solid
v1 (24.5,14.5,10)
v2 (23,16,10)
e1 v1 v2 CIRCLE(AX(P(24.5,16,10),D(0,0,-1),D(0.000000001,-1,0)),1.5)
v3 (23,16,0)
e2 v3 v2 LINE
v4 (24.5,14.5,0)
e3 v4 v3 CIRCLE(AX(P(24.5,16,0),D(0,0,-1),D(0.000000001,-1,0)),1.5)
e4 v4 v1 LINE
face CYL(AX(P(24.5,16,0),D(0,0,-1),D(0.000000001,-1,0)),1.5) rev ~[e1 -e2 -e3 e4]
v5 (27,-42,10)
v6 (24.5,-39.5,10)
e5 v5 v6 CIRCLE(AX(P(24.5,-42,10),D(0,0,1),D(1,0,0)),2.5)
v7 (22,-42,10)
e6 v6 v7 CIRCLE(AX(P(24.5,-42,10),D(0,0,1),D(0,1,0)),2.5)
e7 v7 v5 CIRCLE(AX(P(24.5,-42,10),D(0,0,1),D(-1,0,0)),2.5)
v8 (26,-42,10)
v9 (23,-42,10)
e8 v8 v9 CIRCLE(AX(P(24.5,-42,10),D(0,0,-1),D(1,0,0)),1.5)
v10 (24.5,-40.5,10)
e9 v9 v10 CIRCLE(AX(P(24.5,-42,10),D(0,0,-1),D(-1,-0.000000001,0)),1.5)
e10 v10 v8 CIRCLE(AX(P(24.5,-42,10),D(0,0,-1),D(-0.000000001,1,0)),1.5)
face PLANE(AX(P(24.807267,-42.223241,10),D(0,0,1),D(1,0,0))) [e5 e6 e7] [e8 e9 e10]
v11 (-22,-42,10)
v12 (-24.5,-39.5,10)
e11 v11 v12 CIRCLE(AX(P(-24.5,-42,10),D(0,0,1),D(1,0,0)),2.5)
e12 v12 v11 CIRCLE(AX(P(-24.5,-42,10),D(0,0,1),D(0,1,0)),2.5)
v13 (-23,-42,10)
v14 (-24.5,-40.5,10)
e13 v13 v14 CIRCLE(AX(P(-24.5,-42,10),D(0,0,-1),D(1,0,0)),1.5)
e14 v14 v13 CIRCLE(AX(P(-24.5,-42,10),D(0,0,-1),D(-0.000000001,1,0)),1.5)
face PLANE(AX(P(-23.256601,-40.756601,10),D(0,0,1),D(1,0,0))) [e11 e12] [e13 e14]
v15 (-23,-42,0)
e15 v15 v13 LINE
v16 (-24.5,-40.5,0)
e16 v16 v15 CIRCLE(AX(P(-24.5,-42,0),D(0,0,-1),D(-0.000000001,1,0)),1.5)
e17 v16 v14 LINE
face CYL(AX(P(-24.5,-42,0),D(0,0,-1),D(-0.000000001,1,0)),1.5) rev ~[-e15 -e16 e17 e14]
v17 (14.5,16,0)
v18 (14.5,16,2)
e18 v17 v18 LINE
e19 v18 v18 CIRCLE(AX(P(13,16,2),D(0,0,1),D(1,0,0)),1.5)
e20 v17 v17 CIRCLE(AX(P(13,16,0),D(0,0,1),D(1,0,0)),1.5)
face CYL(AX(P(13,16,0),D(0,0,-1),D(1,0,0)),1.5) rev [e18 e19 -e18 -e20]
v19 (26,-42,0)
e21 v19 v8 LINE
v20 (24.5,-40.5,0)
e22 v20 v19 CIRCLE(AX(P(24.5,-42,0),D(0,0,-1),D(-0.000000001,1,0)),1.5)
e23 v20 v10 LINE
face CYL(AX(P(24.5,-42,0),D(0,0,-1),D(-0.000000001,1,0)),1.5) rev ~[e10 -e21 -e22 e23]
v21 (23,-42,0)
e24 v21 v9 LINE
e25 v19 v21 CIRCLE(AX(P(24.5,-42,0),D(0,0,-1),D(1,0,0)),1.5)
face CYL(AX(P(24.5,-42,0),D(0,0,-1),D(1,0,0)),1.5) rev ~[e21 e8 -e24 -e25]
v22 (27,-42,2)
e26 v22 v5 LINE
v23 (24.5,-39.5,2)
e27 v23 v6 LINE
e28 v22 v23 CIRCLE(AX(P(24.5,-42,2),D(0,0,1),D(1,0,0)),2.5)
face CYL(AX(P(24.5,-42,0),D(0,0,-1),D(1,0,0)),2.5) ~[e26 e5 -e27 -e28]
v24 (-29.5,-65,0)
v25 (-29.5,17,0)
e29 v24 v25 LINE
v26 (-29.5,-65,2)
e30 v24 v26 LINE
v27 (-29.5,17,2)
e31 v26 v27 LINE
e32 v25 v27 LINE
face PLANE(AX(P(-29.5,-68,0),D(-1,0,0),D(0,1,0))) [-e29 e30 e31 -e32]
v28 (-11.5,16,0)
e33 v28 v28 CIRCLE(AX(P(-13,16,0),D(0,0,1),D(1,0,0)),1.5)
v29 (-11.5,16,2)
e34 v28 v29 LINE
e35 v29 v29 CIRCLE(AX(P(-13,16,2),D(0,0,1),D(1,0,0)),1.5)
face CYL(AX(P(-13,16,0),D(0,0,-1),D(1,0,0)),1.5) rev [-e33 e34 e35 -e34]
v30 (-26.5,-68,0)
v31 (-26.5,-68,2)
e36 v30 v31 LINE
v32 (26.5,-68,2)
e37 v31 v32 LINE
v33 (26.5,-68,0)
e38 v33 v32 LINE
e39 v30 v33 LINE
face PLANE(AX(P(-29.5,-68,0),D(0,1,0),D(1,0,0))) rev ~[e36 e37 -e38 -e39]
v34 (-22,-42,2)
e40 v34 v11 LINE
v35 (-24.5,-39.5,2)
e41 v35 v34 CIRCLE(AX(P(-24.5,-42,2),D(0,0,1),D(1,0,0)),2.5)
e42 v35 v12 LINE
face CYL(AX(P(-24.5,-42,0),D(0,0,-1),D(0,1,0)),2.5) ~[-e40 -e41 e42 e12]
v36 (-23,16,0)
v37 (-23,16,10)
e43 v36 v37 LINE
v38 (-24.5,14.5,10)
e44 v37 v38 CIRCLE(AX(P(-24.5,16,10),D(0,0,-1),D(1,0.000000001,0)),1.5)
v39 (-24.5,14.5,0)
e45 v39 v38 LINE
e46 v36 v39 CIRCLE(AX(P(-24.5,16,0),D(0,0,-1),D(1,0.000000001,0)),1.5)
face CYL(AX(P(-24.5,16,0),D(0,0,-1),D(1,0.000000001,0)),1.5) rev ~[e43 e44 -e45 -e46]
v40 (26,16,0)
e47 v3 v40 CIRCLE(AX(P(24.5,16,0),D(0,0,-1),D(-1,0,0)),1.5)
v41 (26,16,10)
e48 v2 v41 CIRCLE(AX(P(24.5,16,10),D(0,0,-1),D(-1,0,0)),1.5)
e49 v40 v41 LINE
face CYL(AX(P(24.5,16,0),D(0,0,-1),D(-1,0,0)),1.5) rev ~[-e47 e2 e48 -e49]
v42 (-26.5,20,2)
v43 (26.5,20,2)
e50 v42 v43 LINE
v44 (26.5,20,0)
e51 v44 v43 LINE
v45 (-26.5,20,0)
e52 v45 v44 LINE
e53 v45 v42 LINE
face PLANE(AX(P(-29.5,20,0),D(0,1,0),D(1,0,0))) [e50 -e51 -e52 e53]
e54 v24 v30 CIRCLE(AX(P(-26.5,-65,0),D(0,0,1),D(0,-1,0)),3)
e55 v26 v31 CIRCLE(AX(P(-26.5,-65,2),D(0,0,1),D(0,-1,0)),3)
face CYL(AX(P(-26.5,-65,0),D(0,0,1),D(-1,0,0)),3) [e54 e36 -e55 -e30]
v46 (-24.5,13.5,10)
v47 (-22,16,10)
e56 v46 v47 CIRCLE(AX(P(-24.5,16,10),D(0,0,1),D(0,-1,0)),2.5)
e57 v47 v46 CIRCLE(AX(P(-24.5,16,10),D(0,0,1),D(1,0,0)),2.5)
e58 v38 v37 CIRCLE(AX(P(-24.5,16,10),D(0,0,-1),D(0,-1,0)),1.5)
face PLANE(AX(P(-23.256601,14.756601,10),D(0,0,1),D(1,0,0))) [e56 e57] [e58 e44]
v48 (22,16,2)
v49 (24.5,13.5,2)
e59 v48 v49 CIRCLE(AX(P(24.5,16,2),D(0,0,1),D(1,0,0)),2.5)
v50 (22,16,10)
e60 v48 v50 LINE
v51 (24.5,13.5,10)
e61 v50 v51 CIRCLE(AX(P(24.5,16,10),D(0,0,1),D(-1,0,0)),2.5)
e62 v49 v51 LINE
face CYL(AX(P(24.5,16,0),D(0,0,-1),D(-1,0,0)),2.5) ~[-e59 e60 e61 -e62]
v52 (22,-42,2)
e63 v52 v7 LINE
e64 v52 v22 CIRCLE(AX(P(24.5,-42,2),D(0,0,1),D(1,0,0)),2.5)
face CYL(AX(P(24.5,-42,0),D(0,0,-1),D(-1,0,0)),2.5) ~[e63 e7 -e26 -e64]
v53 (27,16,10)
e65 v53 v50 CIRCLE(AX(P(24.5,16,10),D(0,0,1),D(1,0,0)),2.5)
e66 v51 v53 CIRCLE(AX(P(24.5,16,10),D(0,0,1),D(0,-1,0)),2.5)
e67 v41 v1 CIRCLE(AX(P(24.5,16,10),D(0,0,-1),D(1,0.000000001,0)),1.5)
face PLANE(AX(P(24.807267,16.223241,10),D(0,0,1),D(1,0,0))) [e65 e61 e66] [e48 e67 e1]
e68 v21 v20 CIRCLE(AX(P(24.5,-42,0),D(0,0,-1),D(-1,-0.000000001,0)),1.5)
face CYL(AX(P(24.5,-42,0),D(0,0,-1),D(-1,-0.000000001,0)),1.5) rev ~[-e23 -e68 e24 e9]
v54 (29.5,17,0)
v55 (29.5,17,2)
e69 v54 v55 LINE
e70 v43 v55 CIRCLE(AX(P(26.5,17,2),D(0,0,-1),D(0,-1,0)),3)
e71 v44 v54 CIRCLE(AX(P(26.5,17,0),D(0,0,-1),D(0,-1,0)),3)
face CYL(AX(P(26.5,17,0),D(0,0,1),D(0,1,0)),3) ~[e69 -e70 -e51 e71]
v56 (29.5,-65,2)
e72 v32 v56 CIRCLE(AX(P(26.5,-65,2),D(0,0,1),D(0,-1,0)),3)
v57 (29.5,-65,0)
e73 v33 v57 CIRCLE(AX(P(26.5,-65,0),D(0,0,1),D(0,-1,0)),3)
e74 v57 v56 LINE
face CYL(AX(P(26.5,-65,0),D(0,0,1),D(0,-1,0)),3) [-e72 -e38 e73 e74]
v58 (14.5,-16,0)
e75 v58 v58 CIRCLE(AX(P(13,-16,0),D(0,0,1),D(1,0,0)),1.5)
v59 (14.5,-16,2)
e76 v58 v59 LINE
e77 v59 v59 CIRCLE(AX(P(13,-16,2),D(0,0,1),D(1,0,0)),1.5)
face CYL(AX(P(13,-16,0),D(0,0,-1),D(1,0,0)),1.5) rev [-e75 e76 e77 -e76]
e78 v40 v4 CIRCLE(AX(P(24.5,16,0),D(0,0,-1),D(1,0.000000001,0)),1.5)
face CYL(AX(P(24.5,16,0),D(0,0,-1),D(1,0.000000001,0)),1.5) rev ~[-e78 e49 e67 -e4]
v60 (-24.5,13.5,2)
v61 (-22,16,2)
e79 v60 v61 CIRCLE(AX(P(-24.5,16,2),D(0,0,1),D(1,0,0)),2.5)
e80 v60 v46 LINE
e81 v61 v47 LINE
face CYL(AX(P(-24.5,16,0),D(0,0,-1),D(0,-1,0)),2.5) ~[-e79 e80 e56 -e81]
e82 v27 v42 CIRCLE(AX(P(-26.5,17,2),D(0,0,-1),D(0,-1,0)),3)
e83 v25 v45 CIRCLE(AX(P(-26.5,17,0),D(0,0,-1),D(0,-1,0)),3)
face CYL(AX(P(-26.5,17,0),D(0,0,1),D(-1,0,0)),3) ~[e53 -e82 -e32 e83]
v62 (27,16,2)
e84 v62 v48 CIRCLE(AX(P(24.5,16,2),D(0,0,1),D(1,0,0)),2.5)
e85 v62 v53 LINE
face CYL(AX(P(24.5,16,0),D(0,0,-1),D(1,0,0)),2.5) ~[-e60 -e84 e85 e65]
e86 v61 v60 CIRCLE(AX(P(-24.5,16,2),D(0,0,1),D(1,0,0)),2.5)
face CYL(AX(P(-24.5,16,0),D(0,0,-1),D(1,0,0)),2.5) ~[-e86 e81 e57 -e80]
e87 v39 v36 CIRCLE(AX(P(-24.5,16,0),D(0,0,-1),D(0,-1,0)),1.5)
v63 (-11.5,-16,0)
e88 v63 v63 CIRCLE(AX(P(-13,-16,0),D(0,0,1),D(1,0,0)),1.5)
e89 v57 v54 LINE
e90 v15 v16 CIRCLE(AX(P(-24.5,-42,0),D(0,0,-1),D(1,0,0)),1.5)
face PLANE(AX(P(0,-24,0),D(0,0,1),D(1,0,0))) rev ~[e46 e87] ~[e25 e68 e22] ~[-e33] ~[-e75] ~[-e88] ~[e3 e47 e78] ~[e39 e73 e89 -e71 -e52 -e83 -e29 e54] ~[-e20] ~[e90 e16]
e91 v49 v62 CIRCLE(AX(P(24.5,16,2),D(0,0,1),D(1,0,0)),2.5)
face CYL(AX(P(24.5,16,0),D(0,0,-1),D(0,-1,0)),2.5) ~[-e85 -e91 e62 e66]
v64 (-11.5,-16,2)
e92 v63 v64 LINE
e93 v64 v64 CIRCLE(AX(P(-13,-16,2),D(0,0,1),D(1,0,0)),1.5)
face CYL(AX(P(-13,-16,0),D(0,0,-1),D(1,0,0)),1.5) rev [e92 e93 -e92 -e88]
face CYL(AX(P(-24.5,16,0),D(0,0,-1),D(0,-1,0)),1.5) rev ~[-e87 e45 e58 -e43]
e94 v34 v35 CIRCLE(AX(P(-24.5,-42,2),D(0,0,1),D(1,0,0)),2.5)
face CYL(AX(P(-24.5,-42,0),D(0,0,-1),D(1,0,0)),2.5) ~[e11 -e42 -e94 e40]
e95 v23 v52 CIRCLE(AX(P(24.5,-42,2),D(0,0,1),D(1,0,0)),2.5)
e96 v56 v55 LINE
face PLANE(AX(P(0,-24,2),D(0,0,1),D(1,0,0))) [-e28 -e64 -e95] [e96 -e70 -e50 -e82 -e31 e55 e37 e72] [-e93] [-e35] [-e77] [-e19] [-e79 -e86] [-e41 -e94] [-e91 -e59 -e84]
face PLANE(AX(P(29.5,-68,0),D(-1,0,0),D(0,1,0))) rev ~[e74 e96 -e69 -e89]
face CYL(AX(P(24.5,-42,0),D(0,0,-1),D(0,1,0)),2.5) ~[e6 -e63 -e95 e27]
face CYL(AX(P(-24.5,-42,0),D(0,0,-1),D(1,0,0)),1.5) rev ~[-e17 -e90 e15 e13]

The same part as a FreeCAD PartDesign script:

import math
import FreeCAD as App
import Part
import Sketcher

V = App.Vector


def edges_at(feature, points):
    """Names of the edges that pass closest to the given points."""
    edges = feature.Shape.Edges
    near = lambda p: min(range(len(edges)), key=lambda i: edges[i].distToShape(Part.Vertex(*p))[0])
    return sorted({f"Edge{near(p) + 1}" for p in points})


def add_polygon(sketch, points):
    """Adds a closed chain of lines whose ends are joined by coincident constraints."""
    first, n = sketch.GeometryCount, len(points)
    for a, b in zip(points, points[1:] + points[:1]):
        sketch.addGeometry(Part.LineSegment(App.Vector(*a, 0), App.Vector(*b, 0)), False)
    for i in range(n):
        sketch.addConstraint(Sketcher.Constraint("Coincident", first + i, 2, first + (i + 1) % n, 1))

doc = App.newDocument("Part")
params = doc.addObject("Spreadsheet::Sheet", "Params")
for row, (alias, value) in enumerate([
    ("sketch1_diameter", "5 mm"),
    ("sketch1_diameter2", "3 mm"),
    ("sketch1_width", "59 mm"),
    ("sketch1_height", "88 mm"),
    ("pad1_length", "2 mm"),
    ("sketch2_radius", "2.5 mm"),
    ("sketch2_radius2", "1.5 mm"),
    ("pad2_length", "10 mm"),
    ("fillet_radius", "3 mm"),
], start=1):
    params.set(f"A{row}", alias)
    params.set(f"B{row}", "=" + value)
    params.setAlias(f"B{row}", alias)

body = doc.addObject("PartDesign::Body", "Body")

sketch1 = body.newObject("Sketcher::SketchObject", "Sketch")
sketch1.AttachmentSupport = (doc.getObject("XY_Plane"), [""])
sketch1.MapMode = "FlatFace"
add_polygon(sketch1, [(-29.5, 20), (-29.5, -68), (29.5, -68), (29.5, 20)])
sketch1.addGeometry(Part.Circle(V(-24.5, -42, 0), V(0, 0, 1), 2.5), False)
sketch1.addGeometry(Part.Circle(V(-13, -16, 0), V(0, 0, 1), 1.5), False)
sketch1.addGeometry(Part.Circle(V(24.5, -42, 0), V(0, 0, 1), 2.5), False)
sketch1.addGeometry(Part.Circle(V(13, -16, 0), V(0, 0, 1), 1.5), False)
sketch1.addGeometry(Part.Circle(V(-24.5, 16, 0), V(0, 0, 1), 2.5), False)
sketch1.addGeometry(Part.Circle(V(-13, 16, 0), V(0, 0, 1), 1.5), False)
sketch1.addGeometry(Part.Circle(V(13, 16, 0), V(0, 0, 1), 1.5), False)
sketch1.addGeometry(Part.Circle(V(24.5, 16, 0), V(0, 0, 1), 2.5), False)
sketch1.addConstraint(Sketcher.Constraint("Vertical", 0))
sketch1.addConstraint(Sketcher.Constraint("Horizontal", 1))
sketch1.addConstraint(Sketcher.Constraint("Vertical", 2))
sketch1.addConstraint(Sketcher.Constraint("Horizontal", 3))
sketch1.addConstraint(Sketcher.Constraint("Equal", 4, 6))
sketch1.addConstraint(Sketcher.Constraint("Equal", 5, 7))
sketch1.addConstraint(Sketcher.Constraint("Equal", 6, 8))
sketch1.addConstraint(Sketcher.Constraint("Equal", 7, 9))
sketch1.addConstraint(Sketcher.Constraint("Equal", 9, 10))
sketch1.addConstraint(Sketcher.Constraint("Equal", 8, 11))
sketch1.addConstraint(Sketcher.Constraint("Symmetric", 7, 3, 9, 3, -1, 1))
sketch1.addConstraint(Sketcher.Constraint("Symmetric", 5, 3, 10, 3, -1, 1))
sketch1.addConstraint(Sketcher.Constraint("Symmetric", 4, 3, 6, 3, -2))
sketch1.addConstraint(Sketcher.Constraint("Symmetric", 5, 3, 7, 3, -2))
sketch1.addConstraint(Sketcher.Constraint("Symmetric", 8, 3, 11, 3, -2))
sketch1.addConstraint(Sketcher.Constraint("Horizontal", 8, 3, 9, 3))
sketch1.addConstraint(Sketcher.Constraint("Vertical", 4, 3, 8, 3))
sketch1.addConstraint(Sketcher.Constraint("Diameter", 4, 5.0))
sketch1.addConstraint(Sketcher.Constraint("Diameter", 5, 3.0))
sketch1.addConstraint(Sketcher.Constraint("DistanceX", 1, 1, 1, 2, 59.0))
sketch1.addConstraint(Sketcher.Constraint("DistanceY", 0, 2, 0, 1, 88.0))
sketch1.addConstraint(Sketcher.Constraint("DistanceY", 4, 3, -1, 1, 42.0))
sketch1.addConstraint(Sketcher.Constraint("DistanceX", 5, 3, -1, 1, 13.0))
sketch1.addConstraint(Sketcher.Constraint("DistanceY", 5, 3, -1, 1, 16.0))
sketch1.addConstraint(Sketcher.Constraint("DistanceY", 0, 2, -1, 1, 68.0))
sketch1.addConstraint(Sketcher.Constraint("DistanceX", 4, 3, 6, 3, 49.0))
sketch1.addConstraint(Sketcher.Constraint("DistanceX", 0, 2, 4, 3, 5.0))
sketch1.setExpression("Constraints[21]", "Params.sketch1_diameter")
sketch1.setExpression("Constraints[22]", "Params.sketch1_diameter2")
sketch1.setExpression("Constraints[23]", "Params.sketch1_width")
sketch1.setExpression("Constraints[24]", "Params.sketch1_height")
pad1 = body.newObject("PartDesign::Pad", "Pad")
pad1.Profile = sketch1
pad1.setExpression("Length", "Params.pad1_length")

sketch2 = body.newObject("Sketcher::SketchObject", "Sketch001")
sketch2.AttachmentSupport = (doc.getObject("XY_Plane"), [""])
sketch2.MapMode = "FlatFace"
sketch2.addGeometry(Part.ArcOfCircle(Part.Circle(V(-24.5, 16, 0), V(0, 0, 1), 2.5), math.radians(-90), math.radians(0)), False)
sketch2.addGeometry(Part.ArcOfCircle(Part.Circle(V(-24.5, 16, 0), V(0, 0, 1), 2.5), math.radians(0), math.radians(270)), False)
sketch2.addGeometry(Part.ArcOfCircle(Part.Circle(V(-24.5, 16, 0), V(0, 0, 1), 1.5), math.radians(-90), math.radians(0)), False)
sketch2.addGeometry(Part.ArcOfCircle(Part.Circle(V(-24.5, 16, 0), V(0, 0, 1), 1.5), math.radians(0), math.radians(270)), False)
sketch2.addGeometry(Part.ArcOfCircle(Part.Circle(V(24.5, 16, 0), V(0, 0, 1), 2.5), math.radians(0), math.radians(180)), False)
sketch2.addGeometry(Part.ArcOfCircle(Part.Circle(V(24.5, 16, 0), V(0, 0, 1), 2.5), math.radians(180), math.radians(270)), False)
sketch2.addGeometry(Part.ArcOfCircle(Part.Circle(V(24.5, 16, 0), V(0, 0, 1), 2.5), math.radians(-90), math.radians(0)), False)
sketch2.addGeometry(Part.ArcOfCircle(Part.Circle(V(24.5, 16, 0), V(0, 0, 1), 1.5), math.radians(-90), math.radians(0)), False)
sketch2.addGeometry(Part.ArcOfCircle(Part.Circle(V(24.5, 16, 0), V(0, 0, 1), 1.5), math.radians(180), math.radians(270)), False)
sketch2.addGeometry(Part.ArcOfCircle(Part.Circle(V(24.5, 16, 0), V(0, 0, 1), 1.5), math.radians(0), math.radians(180)), False)
sketch2.addGeometry(Part.ArcOfCircle(Part.Circle(V(-24.5, -42, 0), V(0, 0, 1), 2.5), math.radians(0), math.radians(90)), False)
sketch2.addGeometry(Part.ArcOfCircle(Part.Circle(V(-24.5, -42, 0), V(0, 0, 1), 2.5), math.radians(90), math.radians(360)), False)
sketch2.addGeometry(Part.ArcOfCircle(Part.Circle(V(-24.5, -42, 0), V(0, 0, 1), 1.5), math.radians(0), math.radians(90)), False)
sketch2.addGeometry(Part.ArcOfCircle(Part.Circle(V(-24.5, -42, 0), V(0, 0, 1), 1.5), math.radians(90), math.radians(360)), False)
sketch2.addGeometry(Part.ArcOfCircle(Part.Circle(V(24.5, -42, 0), V(0, 0, 1), 2.5), math.radians(0), math.radians(90)), False)
sketch2.addGeometry(Part.ArcOfCircle(Part.Circle(V(24.5, -42, 0), V(0, 0, 1), 2.5), math.radians(90), math.radians(180)), False)
sketch2.addGeometry(Part.ArcOfCircle(Part.Circle(V(24.5, -42, 0), V(0, 0, 1), 2.5), math.radians(180), math.radians(360)), False)
sketch2.addGeometry(Part.ArcOfCircle(Part.Circle(V(24.5, -42, 0), V(0, 0, 1), 1.5), math.radians(180), math.radians(360)), False)
sketch2.addGeometry(Part.ArcOfCircle(Part.Circle(V(24.5, -42, 0), V(0, 0, 1), 1.5), math.radians(90), math.radians(180)), False)
sketch2.addGeometry(Part.ArcOfCircle(Part.Circle(V(24.5, -42, 0), V(0, 0, 1), 1.5), math.radians(0), math.radians(90)), False)
sketch2.addConstraint(Sketcher.Constraint("Tangent", 0, 1, 1, 2))
sketch2.addConstraint(Sketcher.Constraint("Coincident", 1, 1, 0, 2))
sketch2.addConstraint(Sketcher.Constraint("Tangent", 2, 1, 3, 2))
sketch2.addConstraint(Sketcher.Constraint("Coincident", 3, 1, 2, 2))
sketch2.addConstraint(Sketcher.Constraint("Tangent", 4, 2, 5, 1))
sketch2.addConstraint(Sketcher.Constraint("Tangent", 5, 2, 6, 1))
sketch2.addConstraint(Sketcher.Constraint("Tangent", 6, 2, 4, 1))
sketch2.addConstraint(Sketcher.Constraint("Tangent", 7, 1, 8, 2))
sketch2.addConstraint(Sketcher.Constraint("Tangent", 8, 1, 9, 2))
sketch2.addConstraint(Sketcher.Constraint("Tangent", 9, 1, 7, 2))
sketch2.addConstraint(Sketcher.Constraint("Tangent", 10, 1, 11, 2))
sketch2.addConstraint(Sketcher.Constraint("Coincident", 11, 1, 10, 2))
sketch2.addConstraint(Sketcher.Constraint("Tangent", 12, 1, 13, 2))
sketch2.addConstraint(Sketcher.Constraint("Coincident", 13, 1, 12, 2))
sketch2.addConstraint(Sketcher.Constraint("Tangent", 14, 2, 15, 1))
sketch2.addConstraint(Sketcher.Constraint("Tangent", 15, 2, 16, 1))
sketch2.addConstraint(Sketcher.Constraint("Tangent", 16, 2, 14, 1))
sketch2.addConstraint(Sketcher.Constraint("Tangent", 17, 1, 18, 2))
sketch2.addConstraint(Sketcher.Constraint("Tangent", 18, 1, 19, 2))
sketch2.addConstraint(Sketcher.Constraint("Tangent", 19, 1, 17, 2))
sketch2.addConstraint(Sketcher.Constraint("Coincident", 2, 3, 0, 3))
sketch2.addConstraint(Sketcher.Constraint("Coincident", 7, 3, 4, 3))
sketch2.addConstraint(Sketcher.Constraint("Coincident", 12, 3, 10, 3))
sketch2.addConstraint(Sketcher.Constraint("Coincident", 17, 3, 14, 3))
sketch2.addConstraint(Sketcher.Constraint("Equal", 1, 4))
sketch2.addConstraint(Sketcher.Constraint("Equal", 3, 7))
sketch2.addConstraint(Sketcher.Constraint("Equal", 6, 10))
sketch2.addConstraint(Sketcher.Constraint("Equal", 9, 12))
sketch2.addConstraint(Sketcher.Constraint("Equal", 11, 14))
sketch2.addConstraint(Sketcher.Constraint("Equal", 13, 17))
sketch2.addConstraint(Sketcher.Constraint("Symmetric", 0, 3, 4, 3, -2))
sketch2.addConstraint(Sketcher.Constraint("Symmetric", 10, 3, 14, 3, -2))
sketch2.addConstraint(Sketcher.Constraint("Horizontal", 9, 3, 1, 1))
sketch2.addConstraint(Sketcher.Constraint("Horizontal", 1, 1, 3, 1))
sketch2.addConstraint(Sketcher.Constraint("Horizontal", 3, 1, 4, 2))
sketch2.addConstraint(Sketcher.Constraint("Horizontal", 4, 2, 6, 2))
sketch2.addConstraint(Sketcher.Constraint("Horizontal", 6, 2, 8, 1))
sketch2.addConstraint(Sketcher.Constraint("Horizontal", 8, 1, 9, 1))
sketch2.addConstraint(Sketcher.Constraint("Horizontal", 19, 3, 10, 1))
sketch2.addConstraint(Sketcher.Constraint("Horizontal", 10, 1, 12, 1))
sketch2.addConstraint(Sketcher.Constraint("Horizontal", 12, 1, 15, 2))
sketch2.addConstraint(Sketcher.Constraint("Horizontal", 15, 2, 16, 2))
sketch2.addConstraint(Sketcher.Constraint("Horizontal", 16, 2, 17, 1))
sketch2.addConstraint(Sketcher.Constraint("Horizontal", 17, 1, 19, 1))
sketch2.addConstraint(Sketcher.Constraint("Vertical", 3, 3, 10, 3))
sketch2.addConstraint(Sketcher.Constraint("Vertical", 13, 3, 0, 1))
sketch2.addConstraint(Sketcher.Constraint("Vertical", 0, 1, 2, 1))
sketch2.addConstraint(Sketcher.Constraint("Vertical", 19, 3, 5, 2))
sketch2.addConstraint(Sketcher.Constraint("Vertical", 5, 2, 7, 1))
sketch2.addConstraint(Sketcher.Constraint("Vertical", 2, 1, 11, 1))
sketch2.addConstraint(Sketcher.Constraint("Vertical", 11, 1, 13, 1))
sketch2.addConstraint(Sketcher.Constraint("Vertical", 7, 1, 14, 2))
sketch2.addConstraint(Sketcher.Constraint("Vertical", 14, 2, 18, 1))
sketch2.addConstraint(Sketcher.Constraint("Radius", 0, 2.5))
sketch2.addConstraint(Sketcher.Constraint("Radius", 2, 1.5))
sketch2.addConstraint(Sketcher.Constraint("DistanceY", -1, 1, 0, 3, 16.0))
sketch2.addConstraint(Sketcher.Constraint("DistanceY", 10, 3, -1, 1, 42.0))
sketch2.addConstraint(Sketcher.Constraint("DistanceX", 1, 1, -1, 1, 22.0))
sketch2.setExpression("Constraints[53]", "Params.sketch2_radius")
sketch2.setExpression("Constraints[54]", "Params.sketch2_radius2")
pad2 = body.newObject("PartDesign::Pad", "Pad001")
pad2.Profile = sketch2
pad2.setExpression("Length", "Params.pad2_length")
doc.recompute()

fillet = body.newObject("PartDesign::Fillet", "Fillet")
fillet.Base = (pad2, edges_at(pad2, [
    (29.5, -68, 1),
    (-29.5, -68, 1),
    (-29.5, 20, 1),
    (29.5, 20, 1),
]))
fillet.setExpression("Radius", "Params.fillet_radius")

doc.recompute()
